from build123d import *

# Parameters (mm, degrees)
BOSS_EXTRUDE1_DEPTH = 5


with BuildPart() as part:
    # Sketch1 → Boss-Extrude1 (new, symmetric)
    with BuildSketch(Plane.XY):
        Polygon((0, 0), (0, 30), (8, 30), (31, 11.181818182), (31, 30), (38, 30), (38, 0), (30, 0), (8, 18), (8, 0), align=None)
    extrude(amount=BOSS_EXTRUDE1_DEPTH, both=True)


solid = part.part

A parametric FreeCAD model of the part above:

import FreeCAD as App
import Part
import Sketcher

doc = App.newDocument("Part")
params = doc.addObject("Spreadsheet::Sheet", "Params")
for row, (alias, value) in enumerate([
    ("sketch1_width", "8 mm"),
    ("sketch1_width2", "7 mm"),
    ("sketch1_height", "30 mm"),
    ("sketch1_height2", "18 mm"),
    ("pad1_length", "10 mm"),
], start=1):
    params.set(f"A{row}", alias)
    params.set(f"B{row}", "=" + value)
    params.setAlias(f"B{row}", alias)

body = doc.addObject("PartDesign::Body", "Body")

sketch1 = body.newObject("Sketcher::SketchObject", "Sketch")
sketch1.AttachmentSupport = (doc.getObject("XY_Plane"), [""])
sketch1.MapMode = "FlatFace"
sketch1.addGeometry([
    Part.LineSegment(App.Vector(0, 30, 0), App.Vector(0, 0, 0)),
    Part.LineSegment(App.Vector(0, 0, 0), App.Vector(8, 0, 0)),
    Part.LineSegment(App.Vector(8, 0, 0), App.Vector(8, 18, 0)),
    Part.LineSegment(App.Vector(8, 18, 0), App.Vector(30, 0, 0)),
    Part.LineSegment(App.Vector(30, 0, 0), App.Vector(38, 0, 0)),
    Part.LineSegment(App.Vector(38, 0, 0), App.Vector(38, 30, 0)),
    Part.LineSegment(App.Vector(38, 30, 0), App.Vector(31, 30, 0)),
    Part.LineSegment(App.Vector(31, 30, 0), App.Vector(31, 11.181818, 0)),
    Part.LineSegment(App.Vector(31, 11.181818, 0), App.Vector(8, 30, 0)),
    Part.LineSegment(App.Vector(8, 30, 0), App.Vector(0, 30, 0)),
], False)
sketch1.addConstraint([
    Sketcher.Constraint("Coincident", 0, 2, 1, 1),
    Sketcher.Constraint("Coincident", 1, 2, 2, 1),
    Sketcher.Constraint("Coincident", 2, 2, 3, 1),
    Sketcher.Constraint("Coincident", 3, 2, 4, 1),
    Sketcher.Constraint("Coincident", 4, 2, 5, 1),
    Sketcher.Constraint("Coincident", 5, 2, 6, 1),
    Sketcher.Constraint("Coincident", 6, 2, 7, 1),
    Sketcher.Constraint("Coincident", 7, 2, 8, 1),
    Sketcher.Constraint("Coincident", 8, 2, 9, 1),
    Sketcher.Constraint("Coincident", 9, 2, 0, 1),
    Sketcher.Constraint("Vertical", 0),
    Sketcher.Constraint("Horizontal", 1),
    Sketcher.Constraint("Vertical", 2),
    Sketcher.Constraint("Horizontal", 4),
    Sketcher.Constraint("Vertical", 5),
    Sketcher.Constraint("Horizontal", 6),
    Sketcher.Constraint("Vertical", 7),
    Sketcher.Constraint("Horizontal", 9),
    Sketcher.Constraint("Coincident", 0, 2, -1, 1),
    Sketcher.Constraint("PointOnObject", 3, 2, -1),
    Sketcher.Constraint("Parallel", 3, 8),
    Sketcher.Constraint("Horizontal", 6, 2, 8, 2),
    Sketcher.Constraint("Vertical", 2, 2, 8, 2),
    Sketcher.Constraint("Equal", 1, 4),
    Sketcher.Constraint("DistanceX", 1, 1, 1, 2, 8.0),
    Sketcher.Constraint("DistanceX", 6, 2, 6, 1, 7.0),
    Sketcher.Constraint("DistanceY", 0, 2, 0, 1, 30.0),
    Sketcher.Constraint("DistanceY", 2, 1, 2, 2, 18.0),
    Sketcher.Constraint("DistanceX", -1, 1, 3, 2, 30.0),
])
sketch1.setExpression("Constraints[24]", "Params.sketch1_width")
sketch1.setExpression("Constraints[25]", "Params.sketch1_width2")
sketch1.setExpression("Constraints[26]", "Params.sketch1_height")
sketch1.setExpression("Constraints[27]", "Params.sketch1_height2")
pad1 = body.newObject("PartDesign::Pad", "Pad")
pad1.Profile = sketch1
pad1.setExpression("Length", "Params.pad1_length")
pad1.Midplane = True

doc.recompute()
